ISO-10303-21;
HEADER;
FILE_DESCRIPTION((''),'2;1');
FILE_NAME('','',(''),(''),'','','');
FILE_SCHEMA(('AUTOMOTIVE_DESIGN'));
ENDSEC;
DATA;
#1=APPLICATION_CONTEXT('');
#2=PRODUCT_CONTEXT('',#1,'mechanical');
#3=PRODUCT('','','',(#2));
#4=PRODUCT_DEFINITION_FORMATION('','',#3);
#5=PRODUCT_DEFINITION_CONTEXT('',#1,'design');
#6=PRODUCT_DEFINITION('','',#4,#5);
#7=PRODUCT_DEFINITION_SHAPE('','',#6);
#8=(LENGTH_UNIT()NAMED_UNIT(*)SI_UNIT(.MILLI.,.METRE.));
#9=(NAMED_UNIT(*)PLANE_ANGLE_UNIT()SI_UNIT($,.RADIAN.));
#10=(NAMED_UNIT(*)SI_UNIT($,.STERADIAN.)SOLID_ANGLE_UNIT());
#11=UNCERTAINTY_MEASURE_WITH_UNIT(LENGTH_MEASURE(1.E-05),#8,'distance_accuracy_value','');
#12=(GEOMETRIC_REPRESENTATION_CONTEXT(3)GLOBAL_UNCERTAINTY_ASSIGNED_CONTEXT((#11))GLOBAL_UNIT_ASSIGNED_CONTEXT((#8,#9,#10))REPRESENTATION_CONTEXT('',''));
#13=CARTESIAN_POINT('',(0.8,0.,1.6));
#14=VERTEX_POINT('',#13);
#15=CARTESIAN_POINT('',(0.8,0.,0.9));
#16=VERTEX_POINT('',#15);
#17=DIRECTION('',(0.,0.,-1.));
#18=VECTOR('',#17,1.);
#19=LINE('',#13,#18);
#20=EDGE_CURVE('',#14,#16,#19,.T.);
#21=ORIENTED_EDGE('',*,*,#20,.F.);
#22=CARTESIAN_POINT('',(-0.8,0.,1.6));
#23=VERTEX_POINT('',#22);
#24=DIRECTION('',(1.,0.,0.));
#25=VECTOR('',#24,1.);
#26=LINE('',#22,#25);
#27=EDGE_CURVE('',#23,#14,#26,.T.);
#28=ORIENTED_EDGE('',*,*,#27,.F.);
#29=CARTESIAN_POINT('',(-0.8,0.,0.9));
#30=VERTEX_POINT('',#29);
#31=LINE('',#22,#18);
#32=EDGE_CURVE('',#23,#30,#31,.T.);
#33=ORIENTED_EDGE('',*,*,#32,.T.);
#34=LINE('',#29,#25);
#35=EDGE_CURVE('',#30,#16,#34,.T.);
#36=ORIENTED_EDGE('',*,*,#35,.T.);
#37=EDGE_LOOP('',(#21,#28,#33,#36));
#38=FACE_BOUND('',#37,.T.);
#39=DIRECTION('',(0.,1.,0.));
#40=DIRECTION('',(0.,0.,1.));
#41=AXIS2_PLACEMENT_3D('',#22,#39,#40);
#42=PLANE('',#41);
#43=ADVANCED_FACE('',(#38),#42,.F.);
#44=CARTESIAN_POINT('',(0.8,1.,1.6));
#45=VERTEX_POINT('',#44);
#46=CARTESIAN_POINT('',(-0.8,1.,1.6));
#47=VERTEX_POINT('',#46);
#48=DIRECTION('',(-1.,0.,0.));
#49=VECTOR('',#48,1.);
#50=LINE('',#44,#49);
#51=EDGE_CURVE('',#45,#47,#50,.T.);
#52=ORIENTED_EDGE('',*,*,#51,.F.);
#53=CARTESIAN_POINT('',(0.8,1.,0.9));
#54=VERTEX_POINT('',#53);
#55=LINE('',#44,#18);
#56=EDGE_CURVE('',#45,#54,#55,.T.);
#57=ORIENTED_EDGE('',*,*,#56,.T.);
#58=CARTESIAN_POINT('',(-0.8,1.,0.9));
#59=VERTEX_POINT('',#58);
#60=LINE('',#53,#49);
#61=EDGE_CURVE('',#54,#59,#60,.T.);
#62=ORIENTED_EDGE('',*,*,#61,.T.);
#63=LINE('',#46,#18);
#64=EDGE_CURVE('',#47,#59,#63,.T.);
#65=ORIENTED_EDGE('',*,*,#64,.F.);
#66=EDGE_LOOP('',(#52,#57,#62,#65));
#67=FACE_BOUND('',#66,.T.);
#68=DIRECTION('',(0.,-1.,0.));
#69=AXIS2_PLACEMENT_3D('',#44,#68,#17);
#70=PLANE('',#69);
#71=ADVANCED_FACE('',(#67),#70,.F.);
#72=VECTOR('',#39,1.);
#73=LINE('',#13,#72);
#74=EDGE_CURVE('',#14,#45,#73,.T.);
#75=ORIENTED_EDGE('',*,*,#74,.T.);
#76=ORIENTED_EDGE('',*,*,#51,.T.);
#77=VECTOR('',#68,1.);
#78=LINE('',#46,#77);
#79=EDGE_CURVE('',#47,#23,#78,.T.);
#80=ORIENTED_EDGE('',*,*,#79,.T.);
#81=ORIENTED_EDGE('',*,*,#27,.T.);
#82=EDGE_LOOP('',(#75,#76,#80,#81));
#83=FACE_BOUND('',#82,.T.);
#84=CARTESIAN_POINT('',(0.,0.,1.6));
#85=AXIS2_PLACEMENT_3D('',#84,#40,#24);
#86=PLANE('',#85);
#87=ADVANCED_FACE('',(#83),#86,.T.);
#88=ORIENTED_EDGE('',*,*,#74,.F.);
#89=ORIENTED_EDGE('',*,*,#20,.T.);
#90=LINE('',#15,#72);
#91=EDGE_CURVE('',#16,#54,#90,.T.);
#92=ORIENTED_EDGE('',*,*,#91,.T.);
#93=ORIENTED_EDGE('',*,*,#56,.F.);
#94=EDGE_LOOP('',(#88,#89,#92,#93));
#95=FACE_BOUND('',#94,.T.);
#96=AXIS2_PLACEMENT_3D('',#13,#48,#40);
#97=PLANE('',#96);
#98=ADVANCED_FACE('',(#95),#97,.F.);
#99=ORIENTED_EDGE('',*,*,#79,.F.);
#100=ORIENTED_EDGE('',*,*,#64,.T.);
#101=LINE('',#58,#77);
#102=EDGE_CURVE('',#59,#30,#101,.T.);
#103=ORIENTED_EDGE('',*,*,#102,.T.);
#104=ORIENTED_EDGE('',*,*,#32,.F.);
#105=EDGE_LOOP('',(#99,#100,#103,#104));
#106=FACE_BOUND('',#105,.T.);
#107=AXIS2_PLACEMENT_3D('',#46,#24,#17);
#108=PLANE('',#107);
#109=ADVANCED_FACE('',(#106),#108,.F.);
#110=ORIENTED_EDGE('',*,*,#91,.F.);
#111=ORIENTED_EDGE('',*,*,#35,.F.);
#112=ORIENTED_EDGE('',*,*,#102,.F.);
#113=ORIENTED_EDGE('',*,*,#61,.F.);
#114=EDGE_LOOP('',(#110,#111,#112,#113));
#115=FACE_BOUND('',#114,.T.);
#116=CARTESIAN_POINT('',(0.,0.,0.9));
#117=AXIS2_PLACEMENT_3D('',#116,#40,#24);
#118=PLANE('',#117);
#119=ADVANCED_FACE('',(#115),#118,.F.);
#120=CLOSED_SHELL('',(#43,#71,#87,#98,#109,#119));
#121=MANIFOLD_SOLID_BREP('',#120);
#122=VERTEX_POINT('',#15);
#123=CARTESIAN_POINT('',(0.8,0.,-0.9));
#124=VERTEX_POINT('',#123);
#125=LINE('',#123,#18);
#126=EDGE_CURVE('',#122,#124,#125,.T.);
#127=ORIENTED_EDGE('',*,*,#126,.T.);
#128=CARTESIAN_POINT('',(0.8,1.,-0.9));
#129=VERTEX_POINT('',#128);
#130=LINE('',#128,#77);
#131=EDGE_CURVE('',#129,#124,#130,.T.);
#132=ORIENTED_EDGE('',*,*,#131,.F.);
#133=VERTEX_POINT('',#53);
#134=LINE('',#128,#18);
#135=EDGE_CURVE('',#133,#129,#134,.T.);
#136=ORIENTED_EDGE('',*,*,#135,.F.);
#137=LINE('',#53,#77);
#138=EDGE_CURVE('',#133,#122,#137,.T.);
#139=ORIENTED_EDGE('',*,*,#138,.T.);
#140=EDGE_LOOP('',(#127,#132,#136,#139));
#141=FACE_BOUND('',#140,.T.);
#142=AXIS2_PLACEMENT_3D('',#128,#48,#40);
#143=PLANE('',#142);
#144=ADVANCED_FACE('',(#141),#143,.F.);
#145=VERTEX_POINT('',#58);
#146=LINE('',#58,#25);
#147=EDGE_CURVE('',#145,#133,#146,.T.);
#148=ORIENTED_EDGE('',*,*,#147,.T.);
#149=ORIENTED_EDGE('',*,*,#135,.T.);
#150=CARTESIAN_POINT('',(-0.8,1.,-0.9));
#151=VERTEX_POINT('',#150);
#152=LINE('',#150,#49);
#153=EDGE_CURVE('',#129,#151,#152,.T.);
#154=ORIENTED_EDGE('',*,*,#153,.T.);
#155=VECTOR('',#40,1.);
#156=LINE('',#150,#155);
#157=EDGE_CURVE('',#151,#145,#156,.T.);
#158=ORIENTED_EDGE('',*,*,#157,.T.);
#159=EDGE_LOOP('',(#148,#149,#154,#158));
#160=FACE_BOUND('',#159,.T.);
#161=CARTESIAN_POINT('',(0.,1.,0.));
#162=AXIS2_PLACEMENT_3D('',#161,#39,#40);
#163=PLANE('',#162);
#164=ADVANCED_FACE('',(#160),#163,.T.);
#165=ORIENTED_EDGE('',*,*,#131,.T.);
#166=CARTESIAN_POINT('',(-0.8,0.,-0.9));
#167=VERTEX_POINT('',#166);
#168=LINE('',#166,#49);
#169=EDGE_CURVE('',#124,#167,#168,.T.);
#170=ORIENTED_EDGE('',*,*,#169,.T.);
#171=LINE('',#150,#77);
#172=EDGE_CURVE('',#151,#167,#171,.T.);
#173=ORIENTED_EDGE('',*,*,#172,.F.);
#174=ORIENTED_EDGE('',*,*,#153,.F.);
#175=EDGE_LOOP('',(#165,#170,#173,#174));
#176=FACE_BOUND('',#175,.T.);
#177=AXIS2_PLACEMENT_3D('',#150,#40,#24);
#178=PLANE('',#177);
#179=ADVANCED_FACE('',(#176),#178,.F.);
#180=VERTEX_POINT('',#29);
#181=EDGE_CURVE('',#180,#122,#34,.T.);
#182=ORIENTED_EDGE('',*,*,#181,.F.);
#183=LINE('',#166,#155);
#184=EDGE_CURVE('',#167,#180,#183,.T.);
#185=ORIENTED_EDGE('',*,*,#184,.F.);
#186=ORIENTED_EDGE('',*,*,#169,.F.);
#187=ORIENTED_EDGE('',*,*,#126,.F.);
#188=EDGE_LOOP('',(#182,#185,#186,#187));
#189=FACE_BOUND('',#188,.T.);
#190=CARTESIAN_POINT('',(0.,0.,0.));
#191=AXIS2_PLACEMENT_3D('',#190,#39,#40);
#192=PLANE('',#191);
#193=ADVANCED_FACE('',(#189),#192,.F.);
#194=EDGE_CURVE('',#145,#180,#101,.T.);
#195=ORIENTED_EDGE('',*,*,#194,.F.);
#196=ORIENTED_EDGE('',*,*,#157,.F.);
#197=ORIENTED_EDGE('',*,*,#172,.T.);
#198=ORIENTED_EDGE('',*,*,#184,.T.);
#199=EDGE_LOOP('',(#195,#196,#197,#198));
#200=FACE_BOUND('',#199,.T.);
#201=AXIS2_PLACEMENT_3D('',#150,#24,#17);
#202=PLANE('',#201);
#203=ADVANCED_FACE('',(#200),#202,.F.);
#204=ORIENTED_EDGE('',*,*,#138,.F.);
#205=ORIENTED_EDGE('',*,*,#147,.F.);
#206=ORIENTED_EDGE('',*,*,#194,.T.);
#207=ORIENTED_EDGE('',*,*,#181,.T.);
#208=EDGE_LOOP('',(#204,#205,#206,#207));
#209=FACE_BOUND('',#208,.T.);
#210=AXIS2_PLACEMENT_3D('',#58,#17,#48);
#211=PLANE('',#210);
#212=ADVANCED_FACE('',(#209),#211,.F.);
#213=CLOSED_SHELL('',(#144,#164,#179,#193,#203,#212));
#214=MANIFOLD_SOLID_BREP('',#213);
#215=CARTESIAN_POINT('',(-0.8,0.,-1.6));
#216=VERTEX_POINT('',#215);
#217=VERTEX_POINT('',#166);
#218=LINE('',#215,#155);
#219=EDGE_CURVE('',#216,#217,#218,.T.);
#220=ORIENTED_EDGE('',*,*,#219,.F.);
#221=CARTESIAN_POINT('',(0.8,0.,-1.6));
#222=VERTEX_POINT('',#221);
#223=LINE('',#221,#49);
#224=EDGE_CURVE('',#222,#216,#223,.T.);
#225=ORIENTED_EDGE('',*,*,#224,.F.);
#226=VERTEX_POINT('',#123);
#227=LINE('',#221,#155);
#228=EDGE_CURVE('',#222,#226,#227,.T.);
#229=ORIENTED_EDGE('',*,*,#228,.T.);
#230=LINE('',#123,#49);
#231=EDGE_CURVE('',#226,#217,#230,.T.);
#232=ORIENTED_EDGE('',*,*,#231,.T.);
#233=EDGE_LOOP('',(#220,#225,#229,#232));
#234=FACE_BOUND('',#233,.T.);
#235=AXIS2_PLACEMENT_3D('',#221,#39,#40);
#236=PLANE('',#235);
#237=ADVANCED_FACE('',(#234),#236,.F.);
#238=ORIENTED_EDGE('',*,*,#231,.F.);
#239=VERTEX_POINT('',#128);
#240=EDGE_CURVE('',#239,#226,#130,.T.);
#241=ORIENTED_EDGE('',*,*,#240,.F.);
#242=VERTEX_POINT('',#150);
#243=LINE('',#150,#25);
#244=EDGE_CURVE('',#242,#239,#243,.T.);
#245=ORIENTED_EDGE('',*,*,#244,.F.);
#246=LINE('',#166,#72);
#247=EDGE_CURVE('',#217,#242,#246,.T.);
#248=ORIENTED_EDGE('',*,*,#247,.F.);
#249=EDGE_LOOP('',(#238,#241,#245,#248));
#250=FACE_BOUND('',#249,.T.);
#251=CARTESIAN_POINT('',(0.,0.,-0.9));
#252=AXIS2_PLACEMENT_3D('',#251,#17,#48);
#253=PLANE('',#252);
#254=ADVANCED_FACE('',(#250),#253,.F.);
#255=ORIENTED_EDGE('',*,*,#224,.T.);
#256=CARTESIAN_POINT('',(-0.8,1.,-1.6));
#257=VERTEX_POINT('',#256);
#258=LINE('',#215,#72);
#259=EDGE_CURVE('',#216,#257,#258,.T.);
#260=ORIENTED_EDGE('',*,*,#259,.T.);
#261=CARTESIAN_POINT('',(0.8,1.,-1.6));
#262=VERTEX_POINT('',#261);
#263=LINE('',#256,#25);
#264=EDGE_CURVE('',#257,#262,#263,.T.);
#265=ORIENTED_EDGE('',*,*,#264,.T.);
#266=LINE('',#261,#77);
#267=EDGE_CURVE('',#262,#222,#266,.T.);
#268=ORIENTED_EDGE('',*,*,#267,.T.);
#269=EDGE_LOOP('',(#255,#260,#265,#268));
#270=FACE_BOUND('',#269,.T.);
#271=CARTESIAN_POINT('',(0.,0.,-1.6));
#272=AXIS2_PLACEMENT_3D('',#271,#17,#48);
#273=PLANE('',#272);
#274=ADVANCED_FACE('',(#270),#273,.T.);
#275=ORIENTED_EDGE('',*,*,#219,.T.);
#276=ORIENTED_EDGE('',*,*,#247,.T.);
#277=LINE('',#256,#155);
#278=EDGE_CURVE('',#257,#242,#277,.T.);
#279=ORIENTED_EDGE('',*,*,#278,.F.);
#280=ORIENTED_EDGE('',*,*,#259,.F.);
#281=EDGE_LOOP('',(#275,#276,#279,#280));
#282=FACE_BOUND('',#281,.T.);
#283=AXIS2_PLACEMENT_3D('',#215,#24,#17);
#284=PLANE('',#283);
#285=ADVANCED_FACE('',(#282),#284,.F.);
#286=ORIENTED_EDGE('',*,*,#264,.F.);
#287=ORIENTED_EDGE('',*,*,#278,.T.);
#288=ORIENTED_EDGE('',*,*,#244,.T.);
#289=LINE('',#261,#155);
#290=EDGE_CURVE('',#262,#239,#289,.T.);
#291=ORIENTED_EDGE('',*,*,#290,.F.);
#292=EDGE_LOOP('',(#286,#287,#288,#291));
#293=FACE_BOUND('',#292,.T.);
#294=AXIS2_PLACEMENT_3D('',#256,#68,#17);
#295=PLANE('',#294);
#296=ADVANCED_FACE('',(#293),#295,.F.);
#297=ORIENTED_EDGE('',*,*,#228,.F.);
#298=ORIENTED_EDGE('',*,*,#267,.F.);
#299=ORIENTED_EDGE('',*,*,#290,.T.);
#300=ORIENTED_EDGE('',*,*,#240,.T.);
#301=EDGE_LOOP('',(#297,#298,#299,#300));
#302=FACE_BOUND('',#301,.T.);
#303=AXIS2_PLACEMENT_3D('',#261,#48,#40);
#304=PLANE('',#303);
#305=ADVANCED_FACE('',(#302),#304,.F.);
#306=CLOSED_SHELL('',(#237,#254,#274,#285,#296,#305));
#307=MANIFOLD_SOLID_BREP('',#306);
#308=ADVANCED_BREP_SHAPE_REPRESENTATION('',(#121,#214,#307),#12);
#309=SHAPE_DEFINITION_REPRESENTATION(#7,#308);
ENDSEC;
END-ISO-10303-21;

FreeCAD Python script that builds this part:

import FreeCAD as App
import Part
import Sketcher
Q = App.Units.Quantity


def add_polygon(sketch, points):
    """Adds a closed chain of lines whose ends are joined by coincident constraints."""
    first, n = sketch.GeometryCount, len(points)
    for a, b in zip(points, points[1:] + points[:1]):
        sketch.addGeometry(Part.LineSegment(App.Vector(*a, 0), App.Vector(*b, 0)), False)
    for i in range(n):
        sketch.addConstraint(Sketcher.Constraint("Coincident", first + i, 2, first + (i + 1) % n, 1))

doc = App.newDocument("Part")
params = doc.addObject("Spreadsheet::Sheet", "Params")
for row, (alias, value) in enumerate([
    ("sketch1_width", "1.6 mm"),
    ("sketch1_height", "1.8 mm"),
    ("pad1_length", "1 mm"),
    ("sketch2_height", "1 mm"),
    ("sketch2_width", "1.6 mm"),
    ("pad2_length", "0.7 mm"),
    ("sketch3_height", "1 mm"),
    ("sketch3_width", "1.6 mm"),
    ("pad3_length", "0.7 mm"),
], start=1):
    params.set(f"A{row}", alias)
    params.set(f"B{row}", "=" + value)
    params.setAlias(f"B{row}", alias)

body = doc.addObject("PartDesign::Body", "Body")

sketch1 = body.newObject("Sketcher::SketchObject", "Sketch")
sketch1.AttachmentSupport = (doc.getObject("XZ_Plane"), [""])
sketch1.MapMode = "FlatFace"
add_polygon(sketch1, [(-0.8, -0.9), (-0.8, 0.9), (0.8, 0.9), (0.8, -0.9)])
sketch1.addConstraint(Sketcher.Constraint("Vertical", 0))
sketch1.addConstraint(Sketcher.Constraint("Horizontal", 1))
sketch1.addConstraint(Sketcher.Constraint("Vertical", 2))
sketch1.addConstraint(Sketcher.Constraint("Horizontal", 3))
sketch1.addConstraint(Sketcher.Constraint("Symmetric", 0, 2, 2, 2, -1, 1))
sketch1.addConstraint(Sketcher.Constraint("DistanceX", 1, 1, 1, 2, Q("1.6 mm")))
sketch1.addConstraint(Sketcher.Constraint("DistanceY", 0, 1, 0, 2, Q("1.8 mm")))
sketch1.setExpression("Constraints[9]", "Params.sketch1_width")
sketch1.setExpression("Constraints[10]", "Params.sketch1_height")
pad1 = body.newObject("PartDesign::Pad", "Pad")
pad1.Profile = sketch1
pad1.setExpression("Length", "Params.pad1_length")
pad1.Reversed = True
body2 = doc.addObject("PartDesign::Body", "Body001")

sketch2 = body2.newObject("Sketcher::SketchObject", "Sketch001")
sketch2.AttachmentSupport = (doc.getObject("XY_Plane001"), [""])
sketch2.MapMode = "FlatFace"
sketch2.AttachmentOffset = App.Placement(App.Vector(0, 0, 0.9), App.Rotation())
add_polygon(sketch2, [(-0.8, 1), (-0.8, 0), (0.8, 0), (0.8, 1)])
sketch2.addConstraint(Sketcher.Constraint("Vertical", 0))
sketch2.addConstraint(Sketcher.Constraint("Horizontal", 1))
sketch2.addConstraint(Sketcher.Constraint("Vertical", 2))
sketch2.addConstraint(Sketcher.Constraint("Horizontal", 3))
sketch2.addConstraint(Sketcher.Constraint("Symmetric", 0, 2, 1, 2, -1, 1))
sketch2.addConstraint(Sketcher.Constraint("DistanceY", 0, 2, 0, 1, Q("1 mm")))
sketch2.addConstraint(Sketcher.Constraint("DistanceX", 1, 1, 1, 2, Q("1.6 mm")))
sketch2.setExpression("Constraints[9]", "Params.sketch2_height")
sketch2.setExpression("Constraints[10]", "Params.sketch2_width")
pad2 = body2.newObject("PartDesign::Pad", "Pad001")
pad2.Profile = sketch2
pad2.setExpression("Length", "Params.pad2_length")
body3 = doc.addObject("PartDesign::Body", "Body002")

sketch3 = body3.newObject("Sketcher::SketchObject", "Sketch002")
sketch3.AttachmentSupport = (doc.getObject("XY_Plane002"), [""])
sketch3.MapMode = "FlatFace"
sketch3.AttachmentOffset = App.Placement(App.Vector(0, 0, -0.9), App.Rotation())
add_polygon(sketch3, [(0.8, 1), (0.8, 0), (-0.8, 0), (-0.8, 1)])
sketch3.addConstraint(Sketcher.Constraint("Vertical", 0))
sketch3.addConstraint(Sketcher.Constraint("Horizontal", 1))
sketch3.addConstraint(Sketcher.Constraint("Vertical", 2))
sketch3.addConstraint(Sketcher.Constraint("Horizontal", 3))
sketch3.addConstraint(Sketcher.Constraint("Symmetric", 0, 2, 1, 2, -1, 1))
sketch3.addConstraint(Sketcher.Constraint("DistanceY", 0, 2, 0, 1, Q("1 mm")))
sketch3.addConstraint(Sketcher.Constraint("DistanceX", 1, 2, 1, 1, Q("1.6 mm")))
sketch3.setExpression("Constraints[9]", "Params.sketch3_height")
sketch3.setExpression("Constraints[10]", "Params.sketch3_width")
pad3 = body3.newObject("PartDesign::Pad", "Pad002")
pad3.Profile = sketch3
pad3.setExpression("Length", "Params.pad3_length")
pad3.Reversed = True

doc.recompute()
